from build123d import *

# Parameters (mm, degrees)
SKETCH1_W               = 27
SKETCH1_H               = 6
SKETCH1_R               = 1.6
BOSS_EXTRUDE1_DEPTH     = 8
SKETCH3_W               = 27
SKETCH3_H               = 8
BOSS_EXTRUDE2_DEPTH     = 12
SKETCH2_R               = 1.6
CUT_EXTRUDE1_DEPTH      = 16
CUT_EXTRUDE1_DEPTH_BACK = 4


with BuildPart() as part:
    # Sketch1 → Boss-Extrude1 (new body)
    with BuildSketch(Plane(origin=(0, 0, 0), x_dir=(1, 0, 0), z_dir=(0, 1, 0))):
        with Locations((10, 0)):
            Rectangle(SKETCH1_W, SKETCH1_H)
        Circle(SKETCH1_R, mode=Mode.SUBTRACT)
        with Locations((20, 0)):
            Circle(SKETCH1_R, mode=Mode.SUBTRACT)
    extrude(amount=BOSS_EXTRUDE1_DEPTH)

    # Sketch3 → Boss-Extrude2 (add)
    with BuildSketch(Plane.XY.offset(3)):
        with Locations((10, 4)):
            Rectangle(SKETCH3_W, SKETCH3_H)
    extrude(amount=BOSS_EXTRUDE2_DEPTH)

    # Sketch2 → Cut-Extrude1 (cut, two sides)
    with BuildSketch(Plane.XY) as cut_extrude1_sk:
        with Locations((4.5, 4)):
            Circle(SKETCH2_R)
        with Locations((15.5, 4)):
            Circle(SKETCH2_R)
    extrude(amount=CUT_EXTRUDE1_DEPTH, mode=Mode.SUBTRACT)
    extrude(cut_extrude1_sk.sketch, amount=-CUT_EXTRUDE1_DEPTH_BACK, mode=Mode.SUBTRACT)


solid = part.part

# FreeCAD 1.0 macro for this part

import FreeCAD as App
import Part
import Sketcher
from FreeCAD import Vector
Q = App.Units.Quantity


def add_polygon(sketch, points):
    """Adds a closed chain of lines whose ends are joined by coincident constraints."""
    first, n = sketch.GeometryCount, len(points)
    for a, b in zip(points, points[1:] + points[:1]):
        sketch.addGeometry(Part.LineSegment(App.Vector(*a, 0), App.Vector(*b, 0)), False)
    for i in range(n):
        sketch.addConstraint(Sketcher.Constraint("Coincident", first + i, 2, first + (i + 1) % n, 1))

doc = App.newDocument("Part")
body = doc.addObject("PartDesign::Body", "Body")

# Sketch on XZ plane
sketch1 = doc.addObject("Sketcher::SketchObject", "Sketch")
body.addObject(sketch1)
sketch1.AttachmentSupport = (doc.XZ_Plane, [""])
sketch1.MapMode = "FlatFace"
add_polygon(sketch1, [(-3.5, -3), (-3.5, 3), (23.5, 3), (23.5, -3)])  # lines 0-3
sketch1.addGeometry(Part.Circle(Vector(0, 0, 0), Vector(0, 0, 1), 1.6), False)  # 4
sketch1.addGeometry(Part.Circle(Vector(20, 0, 0), Vector(0, 0, 1), 1.6), False)  # 5
sketch1.addConstraint([
    Sketcher.Constraint("Vertical", 0),
    Sketcher.Constraint("Horizontal", 1),
    Sketcher.Constraint("Vertical", 2),
    Sketcher.Constraint("Horizontal", 3),
    Sketcher.Constraint("Coincident", 4, 3, -1, 1),
    Sketcher.Constraint("Equal", 4, 5),
    Sketcher.Constraint("PointOnObject", 5, 3, -1),
    Sketcher.Constraint("Diameter", 4, Q("3.2 mm")),
    Sketcher.Constraint("DistanceX", 1, 1, 1, 2, Q("27 mm")),
    Sketcher.Constraint("DistanceY", 0, 1, 0, 2, Q("6 mm")),
    Sketcher.Constraint("DistanceX", -1, 1, 5, 3, Q("20 mm")),
    Sketcher.Constraint("DistanceY", -1, 1, 0, 2, Q("3 mm")),
    Sketcher.Constraint("DistanceX", 0, 2, -1, 1, Q("3.5 mm")),
])
pad1 = doc.addObject("PartDesign::Pad", "Pad")
body.addObject(pad1)
pad1.Profile = sketch1
pad1.Length = 8
pad1.Reversed = True

# Sketch on XY plane
sketch2 = doc.addObject("Sketcher::SketchObject", "Sketch001")
body.addObject(sketch2)
sketch2.AttachmentSupport = (doc.XY_Plane, [""])
sketch2.MapMode = "FlatFace"
sketch2.AttachmentOffset = App.Placement(Vector(0, 0, 3), App.Rotation())
add_polygon(sketch2, [(-3.5, 8), (-3.5, 0), (23.5, 0), (23.5, 8)])  # lines 0-3
sketch2.addConstraint([
    Sketcher.Constraint("Vertical", 0),
    Sketcher.Constraint("Horizontal", 1),
    Sketcher.Constraint("Vertical", 2),
    Sketcher.Constraint("Horizontal", 3),
    Sketcher.Constraint("PointOnObject", 0, 2, -1),
    Sketcher.Constraint("DistanceX", 1, 1, 1, 2, Q("27 mm")),
    Sketcher.Constraint("DistanceY", 0, 2, 0, 1, Q("8 mm")),
    Sketcher.Constraint("DistanceX", 0, 2, -1, 1, Q("3.5 mm")),
])
pad2 = doc.addObject("PartDesign::Pad", "Pad001")
body.addObject(pad2)
pad2.Profile = sketch2
pad2.Length = 12

# Sketch on XY plane
sketch3 = doc.addObject("Sketcher::SketchObject", "Sketch002")
body.addObject(sketch3)
sketch3.AttachmentSupport = (doc.XY_Plane, [""])
sketch3.MapMode = "FlatFace"
sketch3.addGeometry([
    Part.Circle(Vector(4.5, 4, 0), Vector(0, 0, 1), 1.6),
    Part.Circle(Vector(15.5, 4, 0), Vector(0, 0, 1), 1.6),
], False)
sketch3.addConstraint([
    Sketcher.Constraint("Equal", 0, 1),
    Sketcher.Constraint("Horizontal", 0, 3, 1, 3),
    Sketcher.Constraint("Diameter", 0, Q("3.2 mm")),
    Sketcher.Constraint("DistanceY", -1, 1, 0, 3, Q("4 mm")),
    Sketcher.Constraint("DistanceX", 0, 3, 1, 3, Q("11 mm")),
    Sketcher.Constraint("DistanceX", -1, 1, 0, 3, Q("4.5 mm")),
])
pocket1 = doc.addObject("PartDesign::Pocket", "Pocket")
body.addObject(pocket1)
pocket1.Profile = sketch3
pocket1.Type = "ThroughAll"
pocket1.Midplane = True

doc.recompute()
